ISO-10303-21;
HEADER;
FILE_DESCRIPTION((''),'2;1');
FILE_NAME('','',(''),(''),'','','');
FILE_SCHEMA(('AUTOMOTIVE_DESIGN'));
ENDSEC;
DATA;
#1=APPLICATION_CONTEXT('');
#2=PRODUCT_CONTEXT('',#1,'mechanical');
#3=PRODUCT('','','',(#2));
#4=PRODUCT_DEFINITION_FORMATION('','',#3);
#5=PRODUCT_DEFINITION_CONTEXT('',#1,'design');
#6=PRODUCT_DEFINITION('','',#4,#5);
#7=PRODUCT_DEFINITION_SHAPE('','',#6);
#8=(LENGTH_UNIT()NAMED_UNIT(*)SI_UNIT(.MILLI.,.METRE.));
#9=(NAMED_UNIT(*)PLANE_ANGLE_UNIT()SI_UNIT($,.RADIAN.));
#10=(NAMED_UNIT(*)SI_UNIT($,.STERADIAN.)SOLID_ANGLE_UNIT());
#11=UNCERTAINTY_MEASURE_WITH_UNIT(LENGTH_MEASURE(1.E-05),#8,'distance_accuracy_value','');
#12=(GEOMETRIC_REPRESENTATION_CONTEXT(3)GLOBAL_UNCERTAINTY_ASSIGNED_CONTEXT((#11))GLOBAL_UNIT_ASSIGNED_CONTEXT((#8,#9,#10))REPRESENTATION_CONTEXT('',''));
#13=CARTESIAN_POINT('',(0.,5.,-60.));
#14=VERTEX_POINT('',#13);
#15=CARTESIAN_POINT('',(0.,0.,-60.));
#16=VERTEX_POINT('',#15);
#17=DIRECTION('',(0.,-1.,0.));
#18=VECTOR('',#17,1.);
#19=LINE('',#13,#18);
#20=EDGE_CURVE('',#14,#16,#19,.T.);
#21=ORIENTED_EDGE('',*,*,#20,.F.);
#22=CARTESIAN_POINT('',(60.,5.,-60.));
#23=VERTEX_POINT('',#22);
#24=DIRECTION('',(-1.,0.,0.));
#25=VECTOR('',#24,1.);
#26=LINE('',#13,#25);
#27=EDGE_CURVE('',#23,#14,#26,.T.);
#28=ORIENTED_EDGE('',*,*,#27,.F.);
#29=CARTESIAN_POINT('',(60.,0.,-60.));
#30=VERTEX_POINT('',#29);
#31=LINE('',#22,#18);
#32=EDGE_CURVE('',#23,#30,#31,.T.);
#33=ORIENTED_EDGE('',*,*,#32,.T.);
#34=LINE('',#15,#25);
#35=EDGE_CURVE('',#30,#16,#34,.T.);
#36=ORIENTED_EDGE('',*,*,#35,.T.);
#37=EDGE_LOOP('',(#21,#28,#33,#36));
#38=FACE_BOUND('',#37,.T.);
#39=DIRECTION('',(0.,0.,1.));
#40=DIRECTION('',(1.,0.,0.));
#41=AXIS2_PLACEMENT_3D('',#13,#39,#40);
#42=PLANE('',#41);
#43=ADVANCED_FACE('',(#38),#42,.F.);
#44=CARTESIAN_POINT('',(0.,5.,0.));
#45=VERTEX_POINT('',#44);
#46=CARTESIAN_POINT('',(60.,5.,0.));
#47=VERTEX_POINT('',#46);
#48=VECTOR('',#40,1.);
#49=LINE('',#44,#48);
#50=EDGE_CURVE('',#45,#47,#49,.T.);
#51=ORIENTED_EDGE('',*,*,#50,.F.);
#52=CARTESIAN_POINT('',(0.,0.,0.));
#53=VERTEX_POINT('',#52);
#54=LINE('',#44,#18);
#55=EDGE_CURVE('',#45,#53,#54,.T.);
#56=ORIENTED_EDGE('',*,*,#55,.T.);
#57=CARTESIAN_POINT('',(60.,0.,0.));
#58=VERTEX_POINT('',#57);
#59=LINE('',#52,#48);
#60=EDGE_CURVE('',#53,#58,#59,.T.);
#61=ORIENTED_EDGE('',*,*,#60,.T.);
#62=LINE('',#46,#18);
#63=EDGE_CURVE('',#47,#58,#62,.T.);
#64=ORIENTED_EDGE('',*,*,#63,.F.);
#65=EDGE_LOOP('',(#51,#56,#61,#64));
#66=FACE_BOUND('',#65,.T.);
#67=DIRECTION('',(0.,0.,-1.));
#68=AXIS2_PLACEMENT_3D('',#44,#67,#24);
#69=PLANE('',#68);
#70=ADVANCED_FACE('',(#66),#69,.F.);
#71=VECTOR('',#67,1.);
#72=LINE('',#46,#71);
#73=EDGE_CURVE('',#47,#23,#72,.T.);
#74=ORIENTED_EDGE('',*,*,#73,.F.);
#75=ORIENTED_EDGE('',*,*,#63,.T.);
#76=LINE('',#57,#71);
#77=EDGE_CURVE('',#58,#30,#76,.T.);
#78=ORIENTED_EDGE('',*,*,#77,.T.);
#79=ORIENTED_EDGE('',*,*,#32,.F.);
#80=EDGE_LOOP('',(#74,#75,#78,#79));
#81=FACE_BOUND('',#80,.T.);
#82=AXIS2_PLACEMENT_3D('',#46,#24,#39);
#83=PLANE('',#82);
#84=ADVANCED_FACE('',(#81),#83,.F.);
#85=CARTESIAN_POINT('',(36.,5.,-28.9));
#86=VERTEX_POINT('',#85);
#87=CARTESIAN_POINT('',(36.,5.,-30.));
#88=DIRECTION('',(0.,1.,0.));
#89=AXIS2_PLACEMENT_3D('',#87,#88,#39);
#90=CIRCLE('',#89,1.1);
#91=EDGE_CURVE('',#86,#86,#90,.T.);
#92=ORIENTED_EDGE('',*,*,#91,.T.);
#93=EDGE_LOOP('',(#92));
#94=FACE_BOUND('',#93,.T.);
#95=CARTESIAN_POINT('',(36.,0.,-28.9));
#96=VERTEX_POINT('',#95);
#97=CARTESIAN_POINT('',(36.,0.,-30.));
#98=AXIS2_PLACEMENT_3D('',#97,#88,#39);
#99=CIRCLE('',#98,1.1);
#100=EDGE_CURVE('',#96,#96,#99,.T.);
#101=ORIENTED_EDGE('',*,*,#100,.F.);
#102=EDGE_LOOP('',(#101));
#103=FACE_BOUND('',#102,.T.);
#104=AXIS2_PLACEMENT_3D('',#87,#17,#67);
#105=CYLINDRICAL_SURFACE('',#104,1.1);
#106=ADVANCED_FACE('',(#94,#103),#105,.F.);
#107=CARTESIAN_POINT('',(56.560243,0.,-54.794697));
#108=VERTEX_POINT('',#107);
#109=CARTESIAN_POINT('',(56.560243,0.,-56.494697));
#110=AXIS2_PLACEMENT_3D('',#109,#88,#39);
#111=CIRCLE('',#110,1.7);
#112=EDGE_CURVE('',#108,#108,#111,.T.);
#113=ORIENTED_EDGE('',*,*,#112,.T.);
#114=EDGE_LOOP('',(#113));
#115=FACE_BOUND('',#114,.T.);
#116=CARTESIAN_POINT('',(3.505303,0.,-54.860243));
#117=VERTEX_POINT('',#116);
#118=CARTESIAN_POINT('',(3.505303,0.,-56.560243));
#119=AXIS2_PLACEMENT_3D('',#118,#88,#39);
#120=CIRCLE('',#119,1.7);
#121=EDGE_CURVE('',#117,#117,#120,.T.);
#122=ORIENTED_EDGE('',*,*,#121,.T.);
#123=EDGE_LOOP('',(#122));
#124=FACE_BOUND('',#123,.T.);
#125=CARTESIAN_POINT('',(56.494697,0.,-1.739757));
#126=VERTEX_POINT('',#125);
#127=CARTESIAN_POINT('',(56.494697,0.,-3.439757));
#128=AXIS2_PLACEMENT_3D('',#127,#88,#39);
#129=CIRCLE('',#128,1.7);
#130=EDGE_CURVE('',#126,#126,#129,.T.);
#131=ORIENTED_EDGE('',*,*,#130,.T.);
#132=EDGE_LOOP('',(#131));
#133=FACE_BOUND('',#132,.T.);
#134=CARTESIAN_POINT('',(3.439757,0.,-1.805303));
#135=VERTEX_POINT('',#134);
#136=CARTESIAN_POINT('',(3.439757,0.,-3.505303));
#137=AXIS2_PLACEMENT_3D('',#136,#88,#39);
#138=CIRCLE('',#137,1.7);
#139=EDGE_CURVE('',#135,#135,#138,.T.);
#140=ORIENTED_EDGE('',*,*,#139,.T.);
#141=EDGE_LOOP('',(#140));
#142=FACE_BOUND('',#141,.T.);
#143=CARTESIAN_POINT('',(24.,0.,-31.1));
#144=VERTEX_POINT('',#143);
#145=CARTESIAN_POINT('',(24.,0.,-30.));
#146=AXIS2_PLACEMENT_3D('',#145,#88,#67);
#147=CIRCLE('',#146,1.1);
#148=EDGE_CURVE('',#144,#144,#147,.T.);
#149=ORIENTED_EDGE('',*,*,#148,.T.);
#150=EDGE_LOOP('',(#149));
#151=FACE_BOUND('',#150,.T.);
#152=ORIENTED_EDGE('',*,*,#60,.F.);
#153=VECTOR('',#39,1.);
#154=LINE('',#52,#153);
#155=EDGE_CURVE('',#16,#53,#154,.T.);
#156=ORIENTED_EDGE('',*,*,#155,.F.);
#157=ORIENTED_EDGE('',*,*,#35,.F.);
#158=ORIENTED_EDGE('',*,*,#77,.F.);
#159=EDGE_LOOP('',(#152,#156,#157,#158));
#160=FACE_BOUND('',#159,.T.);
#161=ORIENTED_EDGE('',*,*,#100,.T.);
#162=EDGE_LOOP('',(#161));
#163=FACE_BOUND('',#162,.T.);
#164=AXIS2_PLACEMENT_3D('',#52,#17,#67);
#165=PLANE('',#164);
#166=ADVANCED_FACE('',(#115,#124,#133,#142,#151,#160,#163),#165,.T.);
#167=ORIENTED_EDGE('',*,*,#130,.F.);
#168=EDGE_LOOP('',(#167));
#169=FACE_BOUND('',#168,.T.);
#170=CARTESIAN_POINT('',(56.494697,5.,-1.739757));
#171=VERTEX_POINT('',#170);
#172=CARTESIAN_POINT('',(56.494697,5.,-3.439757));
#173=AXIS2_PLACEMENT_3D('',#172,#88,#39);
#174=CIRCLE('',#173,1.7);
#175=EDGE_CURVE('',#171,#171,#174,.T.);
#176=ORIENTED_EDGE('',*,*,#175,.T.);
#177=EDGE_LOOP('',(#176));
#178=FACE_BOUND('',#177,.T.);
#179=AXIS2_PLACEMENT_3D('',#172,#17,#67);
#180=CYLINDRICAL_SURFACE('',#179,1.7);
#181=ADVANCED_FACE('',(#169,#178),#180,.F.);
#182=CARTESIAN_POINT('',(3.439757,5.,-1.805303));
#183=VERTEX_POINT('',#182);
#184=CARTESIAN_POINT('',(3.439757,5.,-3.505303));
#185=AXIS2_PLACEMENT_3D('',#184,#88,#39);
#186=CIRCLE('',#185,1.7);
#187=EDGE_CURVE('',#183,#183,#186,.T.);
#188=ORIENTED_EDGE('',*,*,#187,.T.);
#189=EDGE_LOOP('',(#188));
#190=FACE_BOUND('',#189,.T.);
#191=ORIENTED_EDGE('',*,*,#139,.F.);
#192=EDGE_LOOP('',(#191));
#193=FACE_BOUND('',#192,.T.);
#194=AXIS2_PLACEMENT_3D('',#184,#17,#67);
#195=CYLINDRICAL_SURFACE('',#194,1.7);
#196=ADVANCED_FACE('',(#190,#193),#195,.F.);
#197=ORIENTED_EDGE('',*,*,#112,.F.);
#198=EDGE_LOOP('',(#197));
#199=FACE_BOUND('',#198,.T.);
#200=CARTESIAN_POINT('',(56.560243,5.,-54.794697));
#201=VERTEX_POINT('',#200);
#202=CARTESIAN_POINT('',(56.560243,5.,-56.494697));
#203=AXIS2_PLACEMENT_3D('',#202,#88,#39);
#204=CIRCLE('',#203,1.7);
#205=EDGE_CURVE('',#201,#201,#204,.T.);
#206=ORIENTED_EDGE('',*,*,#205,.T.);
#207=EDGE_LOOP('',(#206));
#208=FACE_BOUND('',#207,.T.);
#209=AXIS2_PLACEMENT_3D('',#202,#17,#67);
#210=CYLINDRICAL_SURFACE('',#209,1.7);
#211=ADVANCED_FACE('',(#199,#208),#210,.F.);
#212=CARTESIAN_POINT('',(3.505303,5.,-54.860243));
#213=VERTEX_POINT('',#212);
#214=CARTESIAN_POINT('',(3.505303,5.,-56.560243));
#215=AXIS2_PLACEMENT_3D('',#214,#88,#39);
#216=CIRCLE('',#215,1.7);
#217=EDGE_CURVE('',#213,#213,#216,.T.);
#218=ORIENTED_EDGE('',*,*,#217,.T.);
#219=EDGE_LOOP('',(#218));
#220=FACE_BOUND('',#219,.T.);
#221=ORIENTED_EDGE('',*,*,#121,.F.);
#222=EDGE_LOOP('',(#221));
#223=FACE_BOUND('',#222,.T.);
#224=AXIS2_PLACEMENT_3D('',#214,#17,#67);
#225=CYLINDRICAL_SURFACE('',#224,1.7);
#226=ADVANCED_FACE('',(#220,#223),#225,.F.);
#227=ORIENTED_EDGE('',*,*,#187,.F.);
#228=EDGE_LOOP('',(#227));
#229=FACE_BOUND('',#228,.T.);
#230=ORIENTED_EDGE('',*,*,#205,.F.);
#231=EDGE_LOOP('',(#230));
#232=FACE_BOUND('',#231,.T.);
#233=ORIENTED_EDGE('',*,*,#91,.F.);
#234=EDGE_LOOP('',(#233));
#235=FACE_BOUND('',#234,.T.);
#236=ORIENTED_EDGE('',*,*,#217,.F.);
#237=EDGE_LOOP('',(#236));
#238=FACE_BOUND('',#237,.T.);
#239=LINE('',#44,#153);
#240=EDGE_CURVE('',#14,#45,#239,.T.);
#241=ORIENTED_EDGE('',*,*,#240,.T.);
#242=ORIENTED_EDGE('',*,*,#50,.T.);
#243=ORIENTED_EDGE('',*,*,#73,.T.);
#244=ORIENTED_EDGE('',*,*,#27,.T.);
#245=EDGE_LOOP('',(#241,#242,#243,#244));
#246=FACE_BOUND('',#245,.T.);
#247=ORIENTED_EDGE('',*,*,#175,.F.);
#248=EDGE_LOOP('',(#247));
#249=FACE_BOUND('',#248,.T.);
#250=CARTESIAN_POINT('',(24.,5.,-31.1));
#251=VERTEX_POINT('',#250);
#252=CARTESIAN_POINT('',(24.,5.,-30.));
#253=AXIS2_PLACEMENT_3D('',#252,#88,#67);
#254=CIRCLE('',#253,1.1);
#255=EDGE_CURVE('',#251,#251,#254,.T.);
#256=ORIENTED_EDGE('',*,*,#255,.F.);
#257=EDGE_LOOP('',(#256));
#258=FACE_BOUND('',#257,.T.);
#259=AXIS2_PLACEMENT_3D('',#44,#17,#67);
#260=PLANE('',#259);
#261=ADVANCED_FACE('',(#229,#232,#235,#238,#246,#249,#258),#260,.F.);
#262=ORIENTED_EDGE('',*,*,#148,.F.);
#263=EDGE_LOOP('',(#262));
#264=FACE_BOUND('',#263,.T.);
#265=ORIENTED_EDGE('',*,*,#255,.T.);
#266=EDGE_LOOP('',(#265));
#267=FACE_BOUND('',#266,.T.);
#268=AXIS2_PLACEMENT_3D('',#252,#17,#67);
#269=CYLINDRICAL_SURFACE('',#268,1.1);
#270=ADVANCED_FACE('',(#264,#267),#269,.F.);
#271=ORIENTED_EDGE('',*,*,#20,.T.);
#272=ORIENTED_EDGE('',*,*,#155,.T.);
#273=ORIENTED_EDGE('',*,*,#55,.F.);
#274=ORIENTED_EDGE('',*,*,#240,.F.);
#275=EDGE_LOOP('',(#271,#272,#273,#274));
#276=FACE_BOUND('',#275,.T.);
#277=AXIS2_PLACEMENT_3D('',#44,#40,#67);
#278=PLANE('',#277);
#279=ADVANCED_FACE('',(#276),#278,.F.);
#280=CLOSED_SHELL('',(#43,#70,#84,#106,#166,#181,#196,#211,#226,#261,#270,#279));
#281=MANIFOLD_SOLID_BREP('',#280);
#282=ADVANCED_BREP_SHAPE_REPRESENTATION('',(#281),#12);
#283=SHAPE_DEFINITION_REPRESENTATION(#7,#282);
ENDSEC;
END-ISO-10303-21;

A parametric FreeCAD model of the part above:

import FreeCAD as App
import Part
import Sketcher
from FreeCAD import Vector


def add_polygon(sketch, points):
    """Adds a closed chain of lines whose ends are joined by coincident constraints."""
    first, n = sketch.GeometryCount, len(points)
    for a, b in zip(points, points[1:] + points[:1]):
        sketch.addGeometry(Part.LineSegment(App.Vector(*a, 0), App.Vector(*b, 0)), False)
    for i in range(n):
        sketch.addConstraint(Sketcher.Constraint("Coincident", first + i, 2, first + (i + 1) % n, 1))

doc = App.newDocument("Part")
body = doc.addObject("PartDesign::Body", "Body")

# Sketch on XZ plane
sketch1 = doc.addObject("Sketcher::SketchObject", "Sketch")
body.addObject(sketch1)
sketch1.AttachmentSupport = (doc.XZ_Plane, [""])
sketch1.MapMode = "FlatFace"
add_polygon(sketch1, [(0, -60), (0, 0), (60, 0), (60, -60)])  # lines 0-3
sketch1.addGeometry(Part.Circle(Vector(3.4, -3.5, 0), Vector(0, 0, 1), 1.7), False)  # 4
sketch1.addGeometry(Part.Circle(Vector(24, -30, 0), Vector(0, 0, 1), 1.1), False)  # 5
sketch1.addGeometry(Part.Circle(Vector(56.5, -3.4, 0), Vector(0, 0, 1), 1.7), False)  # 6
sketch1.addGeometry(Part.Circle(Vector(36, -30, 0), Vector(0, 0, 1), 1.1), False)  # 7
sketch1.addGeometry(Part.Circle(Vector(3.5, -56.6, 0), Vector(0, 0, 1), 1.7), False)  # 8
sketch1.addGeometry(Part.Circle(Vector(56.6, -56.5, 0), Vector(0, 0, 1), 1.7), False)  # 9
sketch1.addConstraint([
    Sketcher.Constraint("Vertical", 0),
    Sketcher.Constraint("Horizontal", 1),
    Sketcher.Constraint("Vertical", 2),
    Sketcher.Constraint("Horizontal", 3),
    Sketcher.Constraint("Coincident", 0, 2, -1, 1),
    Sketcher.Constraint("Equal", 4, 6),
    Sketcher.Constraint("Equal", 5, 7),
    Sketcher.Constraint("Equal", 6, 8),
    Sketcher.Constraint("Equal", 8, 9),
    Sketcher.Constraint("Horizontal", 5, 3, 7, 3),
    Sketcher.Constraint("Equal", 3, 0),
    Sketcher.Constraint("Diameter", 4, 3.4),
    Sketcher.Constraint("Diameter", 5, 2.2),
    Sketcher.Constraint("DistanceX", 1, 1, 1, 2, 60.0),
    Sketcher.Constraint("DistanceX", -1, 1, 5, 3, 24.0),
    Sketcher.Constraint("DistanceY", 5, 3, -1, 1, 30.0),
    Sketcher.Constraint("DistanceX", -1, 1, 7, 3, 36.0),
    Sketcher.Constraint("DistanceX", 4, 3, 6, 3, 53.05494),
    Sketcher.Constraint("DistanceY", 8, 3, 4, 3, 53.05494),
    Sketcher.Constraint("DistanceY", 9, 3, 6, 3, 53.05494),
    Sketcher.Constraint("DistanceX", 8, 3, 9, 3, 53.05494),
    Sketcher.Constraint("DistanceX", -1, 1, 4, 3, 3.439757),
    Sketcher.Constraint("DistanceY", 4, 3, -1, 1, 3.505303),
    Sketcher.Constraint("DistanceY", 6, 3, -1, 1, 3.439757),
    Sketcher.Constraint("DistanceX", -1, 1, 8, 3, 3.505303),
])
pad1 = doc.addObject("PartDesign::Pad", "Pad")
body.addObject(pad1)
pad1.Profile = sketch1
pad1.Length = 5
pad1.Reversed = True

doc.recompute()
